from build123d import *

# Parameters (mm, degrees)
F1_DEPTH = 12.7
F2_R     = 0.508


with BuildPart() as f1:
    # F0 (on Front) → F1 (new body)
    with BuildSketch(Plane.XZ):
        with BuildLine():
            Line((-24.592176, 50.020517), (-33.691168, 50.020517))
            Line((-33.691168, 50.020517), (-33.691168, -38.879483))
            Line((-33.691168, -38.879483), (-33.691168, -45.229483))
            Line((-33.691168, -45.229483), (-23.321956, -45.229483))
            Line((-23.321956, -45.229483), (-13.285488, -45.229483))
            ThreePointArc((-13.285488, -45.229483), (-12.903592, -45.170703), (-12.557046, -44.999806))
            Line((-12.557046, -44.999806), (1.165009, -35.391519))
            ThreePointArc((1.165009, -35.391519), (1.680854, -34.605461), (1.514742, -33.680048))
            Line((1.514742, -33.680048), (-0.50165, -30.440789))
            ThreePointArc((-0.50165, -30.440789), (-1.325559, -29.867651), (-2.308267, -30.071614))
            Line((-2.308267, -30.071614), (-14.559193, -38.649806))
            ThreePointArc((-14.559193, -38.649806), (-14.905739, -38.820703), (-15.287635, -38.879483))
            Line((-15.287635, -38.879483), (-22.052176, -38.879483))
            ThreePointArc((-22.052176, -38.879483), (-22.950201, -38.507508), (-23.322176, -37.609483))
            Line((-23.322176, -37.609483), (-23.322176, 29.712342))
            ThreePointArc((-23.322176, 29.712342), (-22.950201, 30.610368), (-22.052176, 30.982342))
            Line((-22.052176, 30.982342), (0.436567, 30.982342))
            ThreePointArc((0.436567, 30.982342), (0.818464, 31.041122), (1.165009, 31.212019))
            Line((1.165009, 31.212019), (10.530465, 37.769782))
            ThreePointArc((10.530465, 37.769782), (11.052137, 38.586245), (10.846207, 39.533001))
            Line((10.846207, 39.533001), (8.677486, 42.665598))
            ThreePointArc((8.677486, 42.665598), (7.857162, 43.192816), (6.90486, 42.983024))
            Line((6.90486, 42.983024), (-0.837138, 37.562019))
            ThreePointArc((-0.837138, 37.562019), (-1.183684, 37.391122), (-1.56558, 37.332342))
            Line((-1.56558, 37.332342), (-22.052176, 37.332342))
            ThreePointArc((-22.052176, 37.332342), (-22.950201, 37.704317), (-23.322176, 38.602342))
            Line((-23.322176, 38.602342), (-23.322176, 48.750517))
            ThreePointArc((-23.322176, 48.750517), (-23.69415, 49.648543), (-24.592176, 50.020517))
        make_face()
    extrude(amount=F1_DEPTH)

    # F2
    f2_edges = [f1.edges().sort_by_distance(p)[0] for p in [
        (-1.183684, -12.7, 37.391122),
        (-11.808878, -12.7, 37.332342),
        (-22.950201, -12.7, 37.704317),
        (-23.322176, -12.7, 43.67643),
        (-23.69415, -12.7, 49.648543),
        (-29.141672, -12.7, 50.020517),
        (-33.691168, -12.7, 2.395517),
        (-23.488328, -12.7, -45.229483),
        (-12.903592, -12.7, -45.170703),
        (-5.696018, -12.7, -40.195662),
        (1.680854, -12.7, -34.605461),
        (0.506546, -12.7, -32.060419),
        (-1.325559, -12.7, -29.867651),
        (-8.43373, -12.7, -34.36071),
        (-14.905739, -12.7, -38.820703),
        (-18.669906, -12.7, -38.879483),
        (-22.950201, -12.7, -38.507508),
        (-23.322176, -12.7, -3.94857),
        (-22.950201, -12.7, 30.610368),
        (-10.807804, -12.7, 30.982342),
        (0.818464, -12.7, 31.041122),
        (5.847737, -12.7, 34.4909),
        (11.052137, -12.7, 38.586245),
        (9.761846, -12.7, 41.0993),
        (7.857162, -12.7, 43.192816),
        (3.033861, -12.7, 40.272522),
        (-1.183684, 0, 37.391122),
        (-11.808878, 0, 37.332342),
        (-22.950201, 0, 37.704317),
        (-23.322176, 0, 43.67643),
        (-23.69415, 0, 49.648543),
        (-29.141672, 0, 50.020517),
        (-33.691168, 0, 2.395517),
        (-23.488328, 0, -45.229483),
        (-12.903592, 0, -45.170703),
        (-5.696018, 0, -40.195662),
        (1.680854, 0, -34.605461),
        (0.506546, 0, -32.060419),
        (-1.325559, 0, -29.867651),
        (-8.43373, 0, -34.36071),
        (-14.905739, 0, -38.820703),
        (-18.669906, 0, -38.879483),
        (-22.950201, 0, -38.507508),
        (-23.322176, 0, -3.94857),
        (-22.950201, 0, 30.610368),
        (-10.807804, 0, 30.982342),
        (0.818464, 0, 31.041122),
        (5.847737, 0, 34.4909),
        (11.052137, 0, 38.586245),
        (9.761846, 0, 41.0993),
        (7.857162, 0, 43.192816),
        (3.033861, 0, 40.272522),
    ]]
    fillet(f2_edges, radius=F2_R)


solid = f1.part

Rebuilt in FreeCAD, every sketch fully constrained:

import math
import FreeCAD as App
import Part
import Sketcher
Q = App.Units.Quantity


def edges_at(feature, points):
    """Names of the edges that pass closest to the given points."""
    edges = feature.Shape.Edges
    near = lambda p: min(range(len(edges)), key=lambda i: edges[i].distToShape(Part.Vertex(*p))[0])
    return sorted({f"Edge{near(p) + 1}" for p in points})

doc = App.newDocument("Part")
body = doc.addObject("PartDesign::Body", "Body")

# Sketch on XZ plane
sketch1 = body.newObject("Sketcher::SketchObject", "Sketch")
sketch1.AttachmentSupport = (doc.getObject("XZ_Plane"), [""])
sketch1.MapMode = "FlatFace"
sketch1.addGeometry(Part.LineSegment(App.Vector(-24.6, 50, 0), App.Vector(-33.7, 50, 0)), False)
sketch1.addGeometry(Part.LineSegment(App.Vector(-33.7, 50, 0), App.Vector(-33.7, -45.2, 0)), False)
sketch1.addGeometry(Part.LineSegment(App.Vector(-33.7, -45.2, 0), App.Vector(-13.3, -45.2, 0)), False)
sketch1.addGeometry(Part.ArcOfCircle(Part.Circle(App.Vector(-13.3, -44, 0), App.Vector(0, 0, 1), 1.3), math.radians(-90), math.radians(-55)), False)
sketch1.addGeometry(Part.LineSegment(App.Vector(-12.6, -45, 0), App.Vector(1.2, -35.4, 0)), False)
sketch1.addGeometry(Part.ArcOfCircle(Part.Circle(App.Vector(0.4, -34.4, 0), App.Vector(0, 0, 1), 1.3), math.radians(-55), math.radians(32)), False)
sketch1.addGeometry(Part.LineSegment(App.Vector(1.5, -33.7, 0), App.Vector(-0.5, -30.4, 0)), False)
sketch1.addGeometry(Part.ArcOfCircle(Part.Circle(App.Vector(-1.6, -31.1, 0), App.Vector(0, 0, 1), 1.3), math.radians(32), math.radians(125)), False)
sketch1.addGeometry(Part.LineSegment(App.Vector(-2.3, -30.1, 0), App.Vector(-14.6, -38.6, 0)), False)
sketch1.addGeometry(Part.ArcOfCircle(Part.Circle(App.Vector(-15.3, -37.6, 0), App.Vector(0, 0, 1), 1.3), math.radians(-90), math.radians(-55)), False)
sketch1.addGeometry(Part.LineSegment(App.Vector(-15.3, -38.9, 0), App.Vector(-22.1, -38.9, 0)), False)
sketch1.addGeometry(Part.ArcOfCircle(Part.Circle(App.Vector(-22.1, -37.6, 0), App.Vector(0, 0, 1), 1.3), math.radians(-180), math.radians(-90)), False)
sketch1.addGeometry(Part.LineSegment(App.Vector(-23.3, -37.6, 0), App.Vector(-23.3, 29.7, 0)), False)
sketch1.addGeometry(Part.ArcOfCircle(Part.Circle(App.Vector(-22.1, 29.7, 0), App.Vector(0, 0, 1), 1.3), math.radians(90), math.radians(180)), False)
sketch1.addGeometry(Part.LineSegment(App.Vector(-22.1, 31, 0), App.Vector(0.4, 31, 0)), False)
sketch1.addGeometry(Part.ArcOfCircle(Part.Circle(App.Vector(0.4, 32.3, 0), App.Vector(0, 0, 1), 1.3), math.radians(-90), math.radians(-55)), False)
sketch1.addGeometry(Part.LineSegment(App.Vector(1.2, 31.2, 0), App.Vector(10.5, 37.8, 0)), False)
sketch1.addGeometry(Part.ArcOfCircle(Part.Circle(App.Vector(9.8, 38.8, 0), App.Vector(0, 0, 1), 1.3), math.radians(-55), math.radians(35)), False)
sketch1.addGeometry(Part.LineSegment(App.Vector(10.8, 39.5, 0), App.Vector(8.7, 42.7, 0)), False)
sketch1.addGeometry(Part.ArcOfCircle(Part.Circle(App.Vector(7.6, 41.9, 0), App.Vector(0, 0, 1), 1.3), math.radians(35), math.radians(125)), False)
sketch1.addGeometry(Part.LineSegment(App.Vector(6.9, 43, 0), App.Vector(-0.8, 37.6, 0)), False)
sketch1.addGeometry(Part.ArcOfCircle(Part.Circle(App.Vector(-1.6, 38.6, 0), App.Vector(0, 0, 1), 1.3), math.radians(-90), math.radians(-55)), False)
sketch1.addGeometry(Part.LineSegment(App.Vector(-1.6, 37.3, 0), App.Vector(-22.1, 37.3, 0)), False)
sketch1.addGeometry(Part.ArcOfCircle(Part.Circle(App.Vector(-22.1, 38.6, 0), App.Vector(0, 0, 1), 1.3), math.radians(-180), math.radians(-90)), False)
sketch1.addGeometry(Part.LineSegment(App.Vector(-23.3, 38.6, 0), App.Vector(-23.3, 48.8, 0)), False)
sketch1.addGeometry(Part.ArcOfCircle(Part.Circle(App.Vector(-24.6, 48.8, 0), App.Vector(0, 0, 1), 1.3), math.radians(0), math.radians(90)), False)
sketch1.addConstraint(Sketcher.Constraint("Coincident", 0, 2, 1, 1))
sketch1.addConstraint(Sketcher.Constraint("Coincident", 1, 2, 2, 1))
sketch1.addConstraint(Sketcher.Constraint("Coincident", 2, 2, 3, 1))
sketch1.addConstraint(Sketcher.Constraint("Coincident", 3, 2, 4, 1))
sketch1.addConstraint(Sketcher.Constraint("Tangent", 4, 2, 5, 1))
sketch1.addConstraint(Sketcher.Constraint("Tangent", 5, 2, 6, 1))
sketch1.addConstraint(Sketcher.Constraint("Tangent", 6, 2, 7, 1))
sketch1.addConstraint(Sketcher.Constraint("Tangent", 7, 2, 8, 1))
sketch1.addConstraint(Sketcher.Constraint("Coincident", 8, 2, 9, 2))
sketch1.addConstraint(Sketcher.Constraint("Coincident", 9, 1, 10, 1))
sketch1.addConstraint(Sketcher.Constraint("Tangent", 10, 2, 11, 2))
sketch1.addConstraint(Sketcher.Constraint("Tangent", 11, 1, 12, 1))
sketch1.addConstraint(Sketcher.Constraint("Tangent", 12, 2, 13, 2))
sketch1.addConstraint(Sketcher.Constraint("Tangent", 13, 1, 14, 1))
sketch1.addConstraint(Sketcher.Constraint("Tangent", 14, 2, 15, 1))
sketch1.addConstraint(Sketcher.Constraint("Tangent", 15, 2, 16, 1))
sketch1.addConstraint(Sketcher.Constraint("Tangent", 16, 2, 17, 1))
sketch1.addConstraint(Sketcher.Constraint("Tangent", 17, 2, 18, 1))
sketch1.addConstraint(Sketcher.Constraint("Tangent", 18, 2, 19, 1))
sketch1.addConstraint(Sketcher.Constraint("Tangent", 19, 2, 20, 1))
sketch1.addConstraint(Sketcher.Constraint("Coincident", 20, 2, 21, 2))
sketch1.addConstraint(Sketcher.Constraint("Coincident", 21, 1, 22, 1))
sketch1.addConstraint(Sketcher.Constraint("Tangent", 22, 2, 23, 2))
sketch1.addConstraint(Sketcher.Constraint("Tangent", 23, 1, 24, 1))
sketch1.addConstraint(Sketcher.Constraint("Tangent", 24, 2, 25, 1))
sketch1.addConstraint(Sketcher.Constraint("Tangent", 25, 2, 0, 1))
sketch1.addConstraint(Sketcher.Constraint("Horizontal", 0))
sketch1.addConstraint(Sketcher.Constraint("Vertical", 1))
sketch1.addConstraint(Sketcher.Constraint("Horizontal", 2))
sketch1.addConstraint(Sketcher.Constraint("Horizontal", 10))
sketch1.addConstraint(Sketcher.Constraint("Vertical", 12))
sketch1.addConstraint(Sketcher.Constraint("Horizontal", 14))
sketch1.addConstraint(Sketcher.Constraint("Horizontal", 22))
sketch1.addConstraint(Sketcher.Constraint("Vertical", 24))
sketch1.addConstraint(Sketcher.Constraint("Equal", 5, 7))
sketch1.addConstraint(Sketcher.Constraint("Equal", 3, 9))
sketch1.addConstraint(Sketcher.Constraint("Equal", 7, 11))
sketch1.addConstraint(Sketcher.Constraint("Equal", 11, 13))
sketch1.addConstraint(Sketcher.Constraint("Equal", 13, 17))
sketch1.addConstraint(Sketcher.Constraint("Equal", 17, 19))
sketch1.addConstraint(Sketcher.Constraint("Equal", 9, 21))
sketch1.addConstraint(Sketcher.Constraint("Equal", 17, 23))
sketch1.addConstraint(Sketcher.Constraint("Equal", 19, 25))
sketch1.addConstraint(Sketcher.Constraint("Parallel", 4, 8))
sketch1.addConstraint(Sketcher.Constraint("Parallel", 8, 16))
sketch1.addConstraint(Sketcher.Constraint("Parallel", 16, 20))
sketch1.addConstraint(Sketcher.Constraint("Vertical", 13, 3, 23, 3))
sketch1.addConstraint(Sketcher.Constraint("Vertical", 4, 2, 15, 2))
sketch1.addConstraint(Sketcher.Constraint("Radius", 5, Q("0.05 in")))
sketch1.addConstraint(Sketcher.Constraint("Angle", 4, Q("35.000002 deg")))
sketch1.addConstraint(Sketcher.Constraint("DistanceY", 1, 2, 1, 1, Q("3.75 in")))
sketch1.addConstraint(Sketcher.Constraint("DistanceY", 1, 2, 11, 3, Q("0.3000001 in")))
sketch1.addConstraint(Sketcher.Constraint("DistanceY", 13, 1, 23, 3, Q("0.3000001 in")))
sketch1.addConstraint(Sketcher.Constraint("DistanceY", 15, 3, 23, 3, Q("0.2499999 in")))
sketch1.addConstraint(Sketcher.Constraint("DistanceY", 3, 2, 8, 2, Q("0.25 in")))
sketch1.addConstraint(Sketcher.Constraint("DistanceY", 15, 2, 20, 2, Q("0.25 in")))
sketch1.addConstraint(Sketcher.Constraint("Radius", 3, Q("1.270011 mm")))
sketch1.addConstraint(Sketcher.Constraint("DistanceX", 0, 2, 0, 1, Q("9.098992 mm")))
sketch1.addConstraint(Sketcher.Constraint("DistanceX", 2, 1, 2, 2, Q("20.40568 mm")))
sketch1.addConstraint(Sketcher.Constraint("DistanceX", 10, 2, 10, 1, Q("6.764541 mm")))
sketch1.addConstraint(Sketcher.Constraint("DistanceY", -1, 1, 17, 2, Q("39.533001 mm")))
sketch1.addConstraint(Sketcher.Constraint("DistanceY", -1, 1, 18, 2, Q("42.665598 mm")))
sketch1.addConstraint(Sketcher.Constraint("DistanceY", 5, 3, 17, 3, Q("73.161301 mm")))
sketch1.addConstraint(Sketcher.Constraint("DistanceX", 3, 3, 4, 2, Q("14.450501 mm")))
sketch1.addConstraint(Sketcher.Constraint("DistanceX", 8, 2, 3, 3, Q("1.273701 mm")))
sketch1.addConstraint(Sketcher.Constraint("DistanceX", 15, 3, 16, 2, Q("10.0939 mm")))
sketch1.addConstraint(Sketcher.Constraint("DistanceY", 17, 2, 19, 3, Q("2.409701 mm")))
sketch1.addConstraint(Sketcher.Constraint("Distance", 6, Q("3.815578 mm")))
sketch1.addConstraint(Sketcher.Constraint("Distance", 8, Q("14.95562 mm")))
sketch1.addConstraint(Sketcher.Constraint("DistanceX", 14, 1, 14, 2, Q("22.488743 mm")))
sketch1.addConstraint(Sketcher.Constraint("DistanceX", 22, 2, 22, 1, Q("20.486596 mm")))
sketch1.addConstraint(Sketcher.Constraint("DistanceX", 3, 3, -1, 1, Q("13.285492 mm")))
pad1 = body.newObject("PartDesign::Pad", "Pad")
pad1.Profile = sketch1
pad1.Length = Q("0.5 in")
doc.recompute()

fillet = body.newObject("PartDesign::Fillet", "Fillet")
fillet.Base = (pad1, edges_at(pad1, [
    (-1.184, -12.7, 37.391),
    (-11.809, -12.7, 37.332),
    (-22.95, -12.7, 37.704),
    (-23.322, -12.7, 43.676),
    (-23.694, -12.7, 49.649),
    (-29.142, -12.7, 50.021),
    (-33.691, -12.7, 2.396),
    (-23.488, -12.7, -45.229),
    (-12.904, -12.7, -45.171),
    (-5.696, -12.7, -40.196),
    (1.681, -12.7, -34.605),
    (0.507, -12.7, -32.06),
    (-1.326, -12.7, -29.868),
    (-8.434, -12.7, -34.361),
    (-14.906, -12.7, -38.821),
    (-18.67, -12.7, -38.879),
    (-22.95, -12.7, -38.508),
    (-23.322, -12.7, -3.949),
    (-22.95, -12.7, 30.61),
    (-10.808, -12.7, 30.982),
    (0.818, -12.7, 31.041),
    (5.848, -12.7, 34.491),
    (11.052, -12.7, 38.586),
    (9.762, -12.7, 41.099),
    (7.857, -12.7, 43.193),
    (3.034, -12.7, 40.273),
    (-1.184, 0, 37.391),
    (-11.809, 0, 37.332),
    (-22.95, 0, 37.704),
    (-23.322, 0, 43.676),
    (-23.694, 0, 49.649),
    (-29.142, 0, 50.021),
    (-33.691, 0, 2.396),
    (-23.488, 0, -45.229),
    (-12.904, 0, -45.171),
    (-5.696, 0, -40.196),
    (1.681, 0, -34.605),
    (0.507, 0, -32.06),
    (-1.326, 0, -29.868),
    (-8.434, 0, -34.361),
    (-14.906, 0, -38.821),
    (-18.67, 0, -38.879),
    (-22.95, 0, -38.508),
    (-23.322, 0, -3.949),
    (-22.95, 0, 30.61),
    (-10.808, 0, 30.982),
    (0.818, 0, 31.041),
    (5.848, 0, 34.491),
    (11.052, 0, 38.586),
    (9.762, 0, 41.099),
    (7.857, 0, 43.193),
    (3.034, 0, 40.273),
]))
fillet.Radius = Q("0.02 in")

doc.recompute()
